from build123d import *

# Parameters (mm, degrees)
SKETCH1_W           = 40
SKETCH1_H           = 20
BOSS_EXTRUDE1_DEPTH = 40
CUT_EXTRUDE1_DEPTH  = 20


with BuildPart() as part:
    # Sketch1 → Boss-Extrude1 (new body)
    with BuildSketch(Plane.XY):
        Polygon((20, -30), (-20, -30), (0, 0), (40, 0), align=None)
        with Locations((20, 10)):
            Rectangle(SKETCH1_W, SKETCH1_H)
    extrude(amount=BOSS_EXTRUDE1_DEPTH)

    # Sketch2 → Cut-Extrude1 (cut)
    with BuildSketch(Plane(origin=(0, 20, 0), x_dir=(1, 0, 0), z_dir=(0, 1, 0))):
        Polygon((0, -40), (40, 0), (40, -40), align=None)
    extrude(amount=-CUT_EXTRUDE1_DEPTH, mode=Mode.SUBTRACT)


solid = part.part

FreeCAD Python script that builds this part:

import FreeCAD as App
import Part
import Sketcher

V = App.Vector

doc = App.newDocument("Part")
body = doc.addObject("PartDesign::Body", "Body")

sketch1 = body.newObject("Sketcher::SketchObject", "Sketch")
sketch1.AttachmentSupport = (doc.getObject("XY_Plane"), [""])
sketch1.MapMode = "FlatFace"
sketch1.addGeometry(Part.LineSegment(V(-20, -30, 0), V(20, -30, 0)), False)
sketch1.addGeometry(Part.LineSegment(V(20, -30, 0), V(40, 0, 0)), False)
sketch1.addGeometry(Part.LineSegment(V(40, 0, 0), V(40, 20, 0)), False)
sketch1.addGeometry(Part.LineSegment(V(40, 20, 0), V(0, 20, 0)), False)
sketch1.addGeometry(Part.LineSegment(V(0, 20, 0), V(0, 0, 0)), False)
sketch1.addGeometry(Part.LineSegment(V(0, 0, 0), V(-20, -30, 0)), False)
sketch1.addConstraint(Sketcher.Constraint("Coincident", 0, 2, 1, 1))
sketch1.addConstraint(Sketcher.Constraint("Coincident", 1, 2, 2, 1))
sketch1.addConstraint(Sketcher.Constraint("Coincident", 2, 2, 3, 1))
sketch1.addConstraint(Sketcher.Constraint("Coincident", 3, 2, 4, 1))
sketch1.addConstraint(Sketcher.Constraint("Coincident", 4, 2, 5, 1))
sketch1.addConstraint(Sketcher.Constraint("Coincident", 5, 2, 0, 1))
sketch1.addConstraint(Sketcher.Constraint("Horizontal", 0))
sketch1.addConstraint(Sketcher.Constraint("Vertical", 2))
sketch1.addConstraint(Sketcher.Constraint("Horizontal", 3))
sketch1.addConstraint(Sketcher.Constraint("Vertical", 4))
sketch1.addConstraint(Sketcher.Constraint("Coincident", 4, 2, -1, 1))
sketch1.addConstraint(Sketcher.Constraint("PointOnObject", 1, 2, -1))
sketch1.addConstraint(Sketcher.Constraint("Parallel", 1, 5))
sketch1.addConstraint(Sketcher.Constraint("DistanceX", 0, 1, 0, 2, 40.0))
sketch1.addConstraint(Sketcher.Constraint("DistanceY", 2, 1, 2, 2, 20.0))
sketch1.addConstraint(Sketcher.Constraint("DistanceX", -1, 1, 0, 2, 20.0))
sketch1.addConstraint(Sketcher.Constraint("DistanceY", 0, 2, -1, 1, 30.0))
pad1 = body.newObject("PartDesign::Pad", "Pad")
pad1.Profile = sketch1
pad1.Length = 40

sketch2 = body.newObject("Sketcher::SketchObject", "Sketch001")
sketch2.AttachmentSupport = (doc.getObject("XZ_Plane"), [""])
sketch2.MapMode = "FlatFace"
sketch2.AttachmentOffset = App.Placement(V(0, 0, -20), App.Rotation())
sketch2.addGeometry(Part.LineSegment(V(40, 0, 0), V(0, 40, 0)), False)
sketch2.addGeometry(Part.LineSegment(V(0, 40, 0), V(40, 40, 0)), False)
sketch2.addGeometry(Part.LineSegment(V(40, 40, 0), V(40, 0, 0)), False)
sketch2.addConstraint(Sketcher.Constraint("Coincident", 0, 2, 1, 1))
sketch2.addConstraint(Sketcher.Constraint("Coincident", 1, 2, 2, 1))
sketch2.addConstraint(Sketcher.Constraint("Coincident", 2, 2, 0, 1))
sketch2.addConstraint(Sketcher.Constraint("Horizontal", 1))
sketch2.addConstraint(Sketcher.Constraint("Vertical", 2))
sketch2.addConstraint(Sketcher.Constraint("PointOnObject", 0, 2, -2))
sketch2.addConstraint(Sketcher.Constraint("PointOnObject", 2, 2, -1))
sketch2.addConstraint(Sketcher.Constraint("Equal", 1, 2))
sketch2.addConstraint(Sketcher.Constraint("DistanceX", 1, 1, 1, 2, 40.0))
pocket1 = body.newObject("PartDesign::Pocket", "Pocket")
pocket1.Profile = sketch2
pocket1.Length = 20
pocket1.Reversed = True

doc.recompute()
